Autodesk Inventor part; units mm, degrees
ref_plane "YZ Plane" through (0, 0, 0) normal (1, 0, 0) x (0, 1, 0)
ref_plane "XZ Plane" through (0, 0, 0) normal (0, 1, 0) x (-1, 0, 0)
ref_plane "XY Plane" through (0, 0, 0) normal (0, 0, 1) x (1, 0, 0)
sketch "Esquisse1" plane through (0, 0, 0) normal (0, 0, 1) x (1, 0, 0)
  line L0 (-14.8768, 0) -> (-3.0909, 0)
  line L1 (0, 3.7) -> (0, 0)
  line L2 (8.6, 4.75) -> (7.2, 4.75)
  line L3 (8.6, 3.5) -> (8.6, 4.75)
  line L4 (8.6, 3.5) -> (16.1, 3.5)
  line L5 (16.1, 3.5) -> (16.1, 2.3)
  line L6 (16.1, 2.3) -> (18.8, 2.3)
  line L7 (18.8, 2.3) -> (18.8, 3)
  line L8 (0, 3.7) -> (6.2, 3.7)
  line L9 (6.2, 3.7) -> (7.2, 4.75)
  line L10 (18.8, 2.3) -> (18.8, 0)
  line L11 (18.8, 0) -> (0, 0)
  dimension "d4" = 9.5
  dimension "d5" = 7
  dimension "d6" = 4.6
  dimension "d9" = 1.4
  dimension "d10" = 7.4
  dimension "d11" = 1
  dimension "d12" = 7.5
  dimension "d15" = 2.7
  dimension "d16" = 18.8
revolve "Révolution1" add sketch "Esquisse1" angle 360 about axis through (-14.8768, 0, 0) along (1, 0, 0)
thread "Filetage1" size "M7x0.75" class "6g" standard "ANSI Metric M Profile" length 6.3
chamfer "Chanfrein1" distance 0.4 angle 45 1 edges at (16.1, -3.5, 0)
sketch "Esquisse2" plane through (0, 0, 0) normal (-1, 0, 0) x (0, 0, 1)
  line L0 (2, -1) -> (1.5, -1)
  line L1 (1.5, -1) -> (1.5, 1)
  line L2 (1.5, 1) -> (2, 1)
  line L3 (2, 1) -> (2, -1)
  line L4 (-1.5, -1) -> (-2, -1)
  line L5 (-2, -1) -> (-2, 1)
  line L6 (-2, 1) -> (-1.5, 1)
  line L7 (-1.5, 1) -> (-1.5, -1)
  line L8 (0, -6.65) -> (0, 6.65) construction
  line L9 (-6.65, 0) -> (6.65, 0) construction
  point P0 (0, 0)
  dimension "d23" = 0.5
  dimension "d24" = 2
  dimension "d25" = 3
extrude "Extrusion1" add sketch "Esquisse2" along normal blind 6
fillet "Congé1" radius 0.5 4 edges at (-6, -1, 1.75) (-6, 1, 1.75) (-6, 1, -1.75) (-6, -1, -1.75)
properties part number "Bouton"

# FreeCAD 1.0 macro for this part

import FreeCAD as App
import Part
import Sketcher
from FreeCAD import Vector


def edges_at(feature, points):
    """Names of the edges that pass closest to the given points."""
    edges = feature.Shape.Edges
    near = lambda p: min(range(len(edges)), key=lambda i: edges[i].distToShape(Part.Vertex(*p))[0])
    return sorted({f"Edge{near(p) + 1}" for p in points})

doc = App.newDocument("Part")
body = doc.addObject("PartDesign::Body", "Body")

sketch1 = body.newObject("Sketcher::SketchObject", "Sketch")
sketch1.AttachmentSupport = (doc.getObject("XY_Plane"), [""])
sketch1.MapMode = "FlatFace"
sketch1.addGeometry(Part.LineSegment(Vector(6.2, 3.7, 0), Vector(0, 3.7, 0)), False)
sketch1.addGeometry(Part.LineSegment(Vector(0, 3.7, 0), Vector(0, 0, 0)), False)
sketch1.addGeometry(Part.LineSegment(Vector(0, 0, 0), Vector(18.8, 0, 0)), False)
sketch1.addGeometry(Part.LineSegment(Vector(18.8, 0, 0), Vector(18.8, 2.3, 0)), False)
sketch1.addGeometry(Part.LineSegment(Vector(18.8, 2.3, 0), Vector(16.1, 2.3, 0)), False)
sketch1.addGeometry(Part.LineSegment(Vector(16.1, 2.3, 0), Vector(16.1, 3.5, 0)), False)
sketch1.addGeometry(Part.LineSegment(Vector(16.1, 3.5, 0), Vector(8.6, 3.5, 0)), False)
sketch1.addGeometry(Part.LineSegment(Vector(8.6, 3.5, 0), Vector(8.6, 4.8, 0)), False)
sketch1.addGeometry(Part.LineSegment(Vector(8.6, 4.8, 0), Vector(7.2, 4.8, 0)), False)
sketch1.addGeometry(Part.LineSegment(Vector(7.2, 4.8, 0), Vector(6.2, 3.7, 0)), False)
sketch1.addConstraint(Sketcher.Constraint("Coincident", 0, 2, 1, 1))
sketch1.addConstraint(Sketcher.Constraint("Coincident", 1, 2, 2, 1))
sketch1.addConstraint(Sketcher.Constraint("Coincident", 2, 2, 3, 1))
sketch1.addConstraint(Sketcher.Constraint("Coincident", 3, 2, 4, 1))
sketch1.addConstraint(Sketcher.Constraint("Coincident", 4, 2, 5, 1))
sketch1.addConstraint(Sketcher.Constraint("Coincident", 5, 2, 6, 1))
sketch1.addConstraint(Sketcher.Constraint("Coincident", 6, 2, 7, 1))
sketch1.addConstraint(Sketcher.Constraint("Coincident", 7, 2, 8, 1))
sketch1.addConstraint(Sketcher.Constraint("Coincident", 8, 2, 9, 1))
sketch1.addConstraint(Sketcher.Constraint("Coincident", 9, 2, 0, 1))
sketch1.addConstraint(Sketcher.Constraint("Horizontal", 0))
sketch1.addConstraint(Sketcher.Constraint("Vertical", 1))
sketch1.addConstraint(Sketcher.Constraint("Horizontal", 2))
sketch1.addConstraint(Sketcher.Constraint("Vertical", 3))
sketch1.addConstraint(Sketcher.Constraint("Horizontal", 4))
sketch1.addConstraint(Sketcher.Constraint("Vertical", 5))
sketch1.addConstraint(Sketcher.Constraint("Horizontal", 6))
sketch1.addConstraint(Sketcher.Constraint("Vertical", 7))
sketch1.addConstraint(Sketcher.Constraint("Horizontal", 8))
sketch1.addConstraint(Sketcher.Constraint("Coincident", 1, 2, -1, 1))
sketch1.addConstraint(Sketcher.Constraint("DistanceX", 2, 1, 2, 2, 18.8))
sketch1.addConstraint(Sketcher.Constraint("DistanceX", 4, 2, 4, 1, 2.7))
sketch1.addConstraint(Sketcher.Constraint("DistanceX", 6, 2, 6, 1, 7.5))
sketch1.addConstraint(Sketcher.Constraint("DistanceX", 8, 2, 8, 1, 1.4))
sketch1.addConstraint(Sketcher.Constraint("DistanceX", 9, 2, 8, 2, 1.0))
sketch1.addConstraint(Sketcher.Constraint("DistanceY", 3, 2, 0, 2, 1.4))
sketch1.addConstraint(Sketcher.Constraint("DistanceY", 1, 2, 1, 1, 3.7))
sketch1.addConstraint(Sketcher.Constraint("DistanceY", 5, 1, 5, 2, 1.2))
sketch1.addConstraint(Sketcher.Constraint("DistanceY", 7, 1, 7, 2, 1.25))
revolution = body.newObject("PartDesign::Revolution", "Revolution")
revolution.Profile = sketch1
revolution.ReferenceAxis = (sketch1, ["H_Axis"])
revolution.Angle = 360
doc.recompute()

chamfer = body.newObject("PartDesign::Chamfer", "Chamfer")
chamfer.Base = (revolution, edges_at(revolution, [(16.1, -3.5, 0)]))
chamfer.Size = 0.4

sketch2 = body.newObject("Sketcher::SketchObject", "Sketch001")
sketch2.AttachmentSupport = (doc.getObject("YZ_Plane"), [""])
sketch2.MapMode = "FlatFace"
sketch2.addGeometry(Part.LineSegment(Vector(-1, 1.5, 0), Vector(-1, 2, 0)), False)
sketch2.addGeometry(Part.LineSegment(Vector(-1, 2, 0), Vector(1, 2, 0)), False)
sketch2.addGeometry(Part.LineSegment(Vector(1, 2, 0), Vector(1, 1.5, 0)), False)
sketch2.addGeometry(Part.LineSegment(Vector(1, 1.5, 0), Vector(-1, 1.5, 0)), False)
sketch2.addGeometry(Part.LineSegment(Vector(-1, -2, 0), Vector(-1, -1.5, 0)), False)
sketch2.addGeometry(Part.LineSegment(Vector(-1, -1.5, 0), Vector(1, -1.5, 0)), False)
sketch2.addGeometry(Part.LineSegment(Vector(1, -1.5, 0), Vector(1, -2, 0)), False)
sketch2.addGeometry(Part.LineSegment(Vector(1, -2, 0), Vector(-1, -2, 0)), False)
sketch2.addConstraint(Sketcher.Constraint("Coincident", 0, 2, 1, 1))
sketch2.addConstraint(Sketcher.Constraint("Coincident", 1, 2, 2, 1))
sketch2.addConstraint(Sketcher.Constraint("Coincident", 2, 2, 3, 1))
sketch2.addConstraint(Sketcher.Constraint("Coincident", 3, 2, 0, 1))
sketch2.addConstraint(Sketcher.Constraint("Coincident", 4, 2, 5, 1))
sketch2.addConstraint(Sketcher.Constraint("Coincident", 5, 2, 6, 1))
sketch2.addConstraint(Sketcher.Constraint("Coincident", 6, 2, 7, 1))
sketch2.addConstraint(Sketcher.Constraint("Coincident", 7, 2, 4, 1))
sketch2.addConstraint(Sketcher.Constraint("Vertical", 0))
sketch2.addConstraint(Sketcher.Constraint("Horizontal", 1))
sketch2.addConstraint(Sketcher.Constraint("Vertical", 2))
sketch2.addConstraint(Sketcher.Constraint("Horizontal", 3))
sketch2.addConstraint(Sketcher.Constraint("Vertical", 4))
sketch2.addConstraint(Sketcher.Constraint("Horizontal", 5))
sketch2.addConstraint(Sketcher.Constraint("Vertical", 6))
sketch2.addConstraint(Sketcher.Constraint("Horizontal", 7))
sketch2.addConstraint(Sketcher.Constraint("Symmetric", 2, 2, 4, 2, -1, 1))
sketch2.addConstraint(Sketcher.Constraint("Symmetric", 0, 2, 6, 2, -1, 1))
sketch2.addConstraint(Sketcher.Constraint("Vertical", 3, 2, 4, 2))
sketch2.addConstraint(Sketcher.Constraint("DistanceX", 1, 1, 1, 2, 2.0))
sketch2.addConstraint(Sketcher.Constraint("DistanceY", 0, 1, 0, 2, 0.5))
sketch2.addConstraint(Sketcher.Constraint("DistanceY", -1, 1, 0, 2, 2.0))
pad1 = body.newObject("PartDesign::Pad", "Pad")
pad1.Profile = sketch2
pad1.Length = 6
pad1.Reversed = True
doc.recompute()

fillet = body.newObject("PartDesign::Fillet", "Fillet")
fillet.Base = (pad1, edges_at(pad1, [
    (-6, -1, 1.75),
    (-6, 1, 1.75),
    (-6, 1, -1.75),
    (-6, -1, -1.75),
]))
fillet.Radius = 0.5

doc.recompute()
